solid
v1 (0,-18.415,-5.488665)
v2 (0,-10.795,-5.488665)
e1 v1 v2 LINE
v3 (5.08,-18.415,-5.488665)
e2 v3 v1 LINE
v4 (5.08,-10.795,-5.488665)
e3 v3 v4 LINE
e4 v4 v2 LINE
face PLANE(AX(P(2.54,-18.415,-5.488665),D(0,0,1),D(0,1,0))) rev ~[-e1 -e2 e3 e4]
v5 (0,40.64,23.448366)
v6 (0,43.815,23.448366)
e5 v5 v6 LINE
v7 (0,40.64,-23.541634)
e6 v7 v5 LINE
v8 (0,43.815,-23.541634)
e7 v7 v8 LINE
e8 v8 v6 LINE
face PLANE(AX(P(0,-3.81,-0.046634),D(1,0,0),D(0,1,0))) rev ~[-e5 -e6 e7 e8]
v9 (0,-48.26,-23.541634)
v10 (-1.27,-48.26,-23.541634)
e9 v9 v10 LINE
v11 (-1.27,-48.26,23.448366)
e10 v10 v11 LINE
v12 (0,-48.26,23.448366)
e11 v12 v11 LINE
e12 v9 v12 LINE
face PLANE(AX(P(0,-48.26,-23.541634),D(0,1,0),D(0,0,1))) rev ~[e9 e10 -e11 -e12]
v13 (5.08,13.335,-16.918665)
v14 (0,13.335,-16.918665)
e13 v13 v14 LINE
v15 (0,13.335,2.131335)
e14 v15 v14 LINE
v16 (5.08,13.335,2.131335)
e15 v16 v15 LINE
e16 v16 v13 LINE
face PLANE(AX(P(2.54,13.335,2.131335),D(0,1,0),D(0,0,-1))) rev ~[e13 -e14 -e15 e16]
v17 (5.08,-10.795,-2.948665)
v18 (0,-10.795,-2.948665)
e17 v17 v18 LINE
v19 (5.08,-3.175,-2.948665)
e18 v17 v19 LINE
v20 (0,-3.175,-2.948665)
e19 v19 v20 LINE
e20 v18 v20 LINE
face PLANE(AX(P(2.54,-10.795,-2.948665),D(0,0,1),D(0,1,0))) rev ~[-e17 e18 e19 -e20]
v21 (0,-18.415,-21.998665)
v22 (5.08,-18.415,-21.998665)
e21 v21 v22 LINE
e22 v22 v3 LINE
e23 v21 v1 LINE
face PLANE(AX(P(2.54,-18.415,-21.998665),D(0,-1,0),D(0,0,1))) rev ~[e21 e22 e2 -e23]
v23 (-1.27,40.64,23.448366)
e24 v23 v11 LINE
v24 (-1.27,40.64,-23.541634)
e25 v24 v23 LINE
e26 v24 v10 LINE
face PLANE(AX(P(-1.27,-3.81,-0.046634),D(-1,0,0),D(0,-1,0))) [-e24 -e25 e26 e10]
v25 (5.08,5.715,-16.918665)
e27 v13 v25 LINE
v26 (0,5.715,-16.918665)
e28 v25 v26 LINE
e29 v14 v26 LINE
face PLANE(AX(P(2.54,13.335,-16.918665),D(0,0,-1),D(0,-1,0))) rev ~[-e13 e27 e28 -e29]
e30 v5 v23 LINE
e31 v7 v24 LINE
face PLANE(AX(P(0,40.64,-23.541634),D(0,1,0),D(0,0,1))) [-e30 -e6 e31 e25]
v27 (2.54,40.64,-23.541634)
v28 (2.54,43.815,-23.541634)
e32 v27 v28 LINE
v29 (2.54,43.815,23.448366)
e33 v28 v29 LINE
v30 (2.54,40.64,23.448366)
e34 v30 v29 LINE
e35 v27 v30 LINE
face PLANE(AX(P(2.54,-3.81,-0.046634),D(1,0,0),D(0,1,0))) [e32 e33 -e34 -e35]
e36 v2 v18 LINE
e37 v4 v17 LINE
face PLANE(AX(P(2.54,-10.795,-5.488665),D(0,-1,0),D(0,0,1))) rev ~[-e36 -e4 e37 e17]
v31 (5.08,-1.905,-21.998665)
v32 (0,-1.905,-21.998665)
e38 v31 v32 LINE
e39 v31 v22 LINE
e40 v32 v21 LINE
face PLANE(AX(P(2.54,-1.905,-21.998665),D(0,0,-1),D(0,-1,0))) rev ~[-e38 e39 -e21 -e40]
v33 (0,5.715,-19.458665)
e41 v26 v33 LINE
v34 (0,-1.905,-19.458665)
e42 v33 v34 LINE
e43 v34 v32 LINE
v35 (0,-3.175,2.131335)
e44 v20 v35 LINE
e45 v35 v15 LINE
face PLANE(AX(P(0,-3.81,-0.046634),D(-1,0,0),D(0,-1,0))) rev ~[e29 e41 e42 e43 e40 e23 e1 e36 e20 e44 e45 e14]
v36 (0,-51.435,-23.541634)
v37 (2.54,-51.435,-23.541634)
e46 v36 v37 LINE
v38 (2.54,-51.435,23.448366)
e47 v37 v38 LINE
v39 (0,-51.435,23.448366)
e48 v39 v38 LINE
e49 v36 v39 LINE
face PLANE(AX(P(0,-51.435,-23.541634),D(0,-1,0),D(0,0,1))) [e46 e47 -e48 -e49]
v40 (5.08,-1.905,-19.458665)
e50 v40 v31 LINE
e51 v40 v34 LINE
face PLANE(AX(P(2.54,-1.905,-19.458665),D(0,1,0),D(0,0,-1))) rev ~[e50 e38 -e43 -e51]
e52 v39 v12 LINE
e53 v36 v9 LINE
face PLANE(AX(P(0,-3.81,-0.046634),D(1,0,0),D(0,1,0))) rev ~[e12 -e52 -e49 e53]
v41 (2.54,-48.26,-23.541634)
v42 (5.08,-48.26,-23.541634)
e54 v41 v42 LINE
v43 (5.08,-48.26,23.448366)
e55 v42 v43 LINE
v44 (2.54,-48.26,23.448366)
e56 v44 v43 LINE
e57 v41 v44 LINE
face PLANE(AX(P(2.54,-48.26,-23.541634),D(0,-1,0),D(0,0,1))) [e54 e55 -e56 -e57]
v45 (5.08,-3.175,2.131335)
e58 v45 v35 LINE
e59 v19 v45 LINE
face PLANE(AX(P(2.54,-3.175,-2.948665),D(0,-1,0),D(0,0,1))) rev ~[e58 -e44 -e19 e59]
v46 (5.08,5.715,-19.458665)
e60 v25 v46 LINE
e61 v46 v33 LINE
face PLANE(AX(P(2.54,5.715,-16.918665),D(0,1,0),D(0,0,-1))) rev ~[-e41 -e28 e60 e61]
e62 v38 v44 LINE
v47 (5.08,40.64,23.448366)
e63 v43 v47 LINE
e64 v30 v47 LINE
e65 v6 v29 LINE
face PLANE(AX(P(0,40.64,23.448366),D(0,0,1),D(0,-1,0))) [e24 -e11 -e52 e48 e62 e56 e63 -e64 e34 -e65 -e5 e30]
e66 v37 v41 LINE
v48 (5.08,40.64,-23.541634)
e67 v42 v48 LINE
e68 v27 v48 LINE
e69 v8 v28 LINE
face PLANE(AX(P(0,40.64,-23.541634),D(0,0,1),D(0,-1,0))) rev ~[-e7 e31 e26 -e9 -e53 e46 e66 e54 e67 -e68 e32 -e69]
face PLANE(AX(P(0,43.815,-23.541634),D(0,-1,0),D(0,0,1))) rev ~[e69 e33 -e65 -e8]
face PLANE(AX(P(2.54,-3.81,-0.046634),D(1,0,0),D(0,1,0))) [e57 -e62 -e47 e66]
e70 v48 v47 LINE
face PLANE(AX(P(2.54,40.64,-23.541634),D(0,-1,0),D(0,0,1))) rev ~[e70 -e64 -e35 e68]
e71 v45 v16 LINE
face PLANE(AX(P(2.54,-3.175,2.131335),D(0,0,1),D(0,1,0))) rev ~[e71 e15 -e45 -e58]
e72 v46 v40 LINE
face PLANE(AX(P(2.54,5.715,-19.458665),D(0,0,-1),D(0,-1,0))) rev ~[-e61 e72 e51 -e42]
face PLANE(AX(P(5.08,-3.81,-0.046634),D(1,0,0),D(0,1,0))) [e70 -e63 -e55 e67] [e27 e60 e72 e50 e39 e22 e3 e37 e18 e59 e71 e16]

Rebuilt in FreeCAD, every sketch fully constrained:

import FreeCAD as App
import Part
import Sketcher
from FreeCAD import Vector
Q = App.Units.Quantity

doc = App.newDocument("Part")
body = doc.addObject("PartDesign::Body", "Body")

# Sketch on YZ plane
sketch1 = body.newObject("Sketcher::SketchObject", "Sketch")
sketch1.AttachmentSupport = (doc.getObject("YZ_Plane"), [""])
sketch1.MapMode = "FlatFace"
sketch1.addGeometry([
    Part.LineSegment(Vector(-51.4, 23.4, 0), Vector(-51.4, -23.5, 0)),  # 0
    Part.LineSegment(Vector(-51.4, -23.5, 0), Vector(43.8, -23.5, 0)),  # 1
    Part.LineSegment(Vector(43.8, -23.5, 0), Vector(43.8, 23.4, 0)),  # 2
    Part.LineSegment(Vector(43.8, 23.4, 0), Vector(-51.4, 23.4, 0)),  # 3
    Part.LineSegment(Vector(-10.8, -2.9, 0), Vector(-3.2, -2.9, 0)),  # 4
    Part.LineSegment(Vector(-3.2, -2.9, 0), Vector(-3.2, 2.1, 0)),  # 5
    Part.LineSegment(Vector(-3.2, 2.1, 0), Vector(13.3, 2.1, 0)),  # 6
    Part.LineSegment(Vector(13.3, 2.1, 0), Vector(13.3, -16.9, 0)),  # 7
    Part.LineSegment(Vector(13.3, -16.9, 0), Vector(5.7, -16.9, 0)),  # 8
    Part.LineSegment(Vector(5.7, -16.9, 0), Vector(5.7, -19.5, 0)),  # 9
    Part.LineSegment(Vector(5.7, -19.5, 0), Vector(-1.9, -19.5, 0)),  # 10
    Part.LineSegment(Vector(-1.9, -19.5, 0), Vector(-1.9, -22, 0)),  # 11
    Part.LineSegment(Vector(-1.9, -22, 0), Vector(-18.4, -22, 0)),  # 12
    Part.LineSegment(Vector(-18.4, -22, 0), Vector(-18.4, -5.5, 0)),  # 13
    Part.LineSegment(Vector(-18.4, -5.5, 0), Vector(-10.8, -5.5, 0)),  # 14
    Part.LineSegment(Vector(-10.8, -5.5, 0), Vector(-10.8, -2.9, 0)),  # 15
], False)
sketch1.addConstraint([
    Sketcher.Constraint("Coincident", 0, 2, 1, 1),
    Sketcher.Constraint("Coincident", 1, 2, 2, 1),
    Sketcher.Constraint("Coincident", 2, 2, 3, 1),
    Sketcher.Constraint("Coincident", 3, 2, 0, 1),
    Sketcher.Constraint("Coincident", 4, 2, 5, 1),
    Sketcher.Constraint("Coincident", 5, 2, 6, 1),
    Sketcher.Constraint("Coincident", 6, 2, 7, 1),
    Sketcher.Constraint("Coincident", 7, 2, 8, 1),
    Sketcher.Constraint("Coincident", 8, 2, 9, 1),
    Sketcher.Constraint("Coincident", 9, 2, 10, 1),
    Sketcher.Constraint("Coincident", 10, 2, 11, 1),
    Sketcher.Constraint("Coincident", 11, 2, 12, 1),
    Sketcher.Constraint("Coincident", 12, 2, 13, 1),
    Sketcher.Constraint("Coincident", 13, 2, 14, 1),
    Sketcher.Constraint("Coincident", 14, 2, 15, 1),
    Sketcher.Constraint("Coincident", 15, 2, 4, 1),
    Sketcher.Constraint("Vertical", 0),
    Sketcher.Constraint("Horizontal", 1),
    Sketcher.Constraint("Vertical", 2),
    Sketcher.Constraint("Horizontal", 3),
    Sketcher.Constraint("Horizontal", 4),
    Sketcher.Constraint("Vertical", 5),
    Sketcher.Constraint("Horizontal", 6),
    Sketcher.Constraint("Vertical", 7),
    Sketcher.Constraint("Horizontal", 8),
    Sketcher.Constraint("Vertical", 9),
    Sketcher.Constraint("Horizontal", 10),
    Sketcher.Constraint("Vertical", 11),
    Sketcher.Constraint("Horizontal", 12),
    Sketcher.Constraint("Vertical", 13),
    Sketcher.Constraint("Horizontal", 14),
    Sketcher.Constraint("Vertical", 15),
    Sketcher.Constraint("Equal", 4, 8),
    Sketcher.Constraint("Equal", 8, 10),
    Sketcher.Constraint("Equal", 6, 12),
    Sketcher.Constraint("Equal", 9, 11),
    Sketcher.Constraint("Equal", 12, 13),
    Sketcher.Constraint("Equal", 11, 15),
    Sketcher.Constraint("DistanceX", 4, 1, 4, 2, Q("0.3 in")),
    Sketcher.Constraint("DistanceY", 5, 1, 5, 2, Q("0.2 in")),
    Sketcher.Constraint("DistanceY", 9, 2, 9, 1, Q("0.1 in")),
    Sketcher.Constraint("DistanceX", 1, 1, 1, 2, Q("3.75 in")),
    Sketcher.Constraint("DistanceX", 6, 1, 6, 2, Q("0.65 in")),
    Sketcher.Constraint("DistanceY", 0, 2, 0, 1, Q("1.85 in")),
    Sketcher.Constraint("DistanceX", 0, 2, 4, 2, Q("1.9 in")),
    Sketcher.Constraint("DistanceX", 0, 2, -1, 1, Q("2.025 in")),
    Sketcher.Constraint("DistanceY", 1, 2, 4, 2, 20.592969),
    Sketcher.Constraint("DistanceY", 0, 2, -1, 1, 23.541634),
])
pad1 = body.newObject("PartDesign::Pad", "Pad")
pad1.Profile = sketch1
pad1.Length = Q("0.1 in")

# Sketch on YZ plane
sketch2 = body.newObject("Sketcher::SketchObject", "Sketch001")
sketch2.AttachmentSupport = (doc.getObject("YZ_Plane"), [""])
sketch2.MapMode = "FlatFace"
sketch2.AttachmentOffset = App.Placement(Vector(0, 0, 0.1 * 25.4), App.Rotation())
sketch2.addGeometry([
    Part.LineSegment(Vector(-48.3, 23.4, 0), Vector(-48.3, -23.5, 0)),  # 0
    Part.LineSegment(Vector(-48.3, -23.5, 0), Vector(40.6, -23.5, 0)),  # 1
    Part.LineSegment(Vector(40.6, -23.5, 0), Vector(40.6, 23.4, 0)),  # 2
    Part.LineSegment(Vector(40.6, 23.4, 0), Vector(-48.3, 23.4, 0)),  # 3
    Part.LineSegment(Vector(-1.9, -22, 0), Vector(-18.4, -22, 0)),  # 4
    Part.LineSegment(Vector(-18.4, -22, 0), Vector(-18.4, -5.5, 0)),  # 5
    Part.LineSegment(Vector(-18.4, -5.5, 0), Vector(-10.8, -5.5, 0)),  # 6
    Part.LineSegment(Vector(-10.8, -5.5, 0), Vector(-10.8, -2.9, 0)),  # 7
    Part.LineSegment(Vector(-10.8, -2.9, 0), Vector(-3.2, -2.9, 0)),  # 8
    Part.LineSegment(Vector(-3.2, -2.9, 0), Vector(-3.2, 2.1, 0)),  # 9
    Part.LineSegment(Vector(-3.2, 2.1, 0), Vector(13.3, 2.1, 0)),  # 10
    Part.LineSegment(Vector(13.3, 2.1, 0), Vector(13.3, -16.9, 0)),  # 11
    Part.LineSegment(Vector(13.3, -16.9, 0), Vector(5.7, -16.9, 0)),  # 12
    Part.LineSegment(Vector(5.7, -16.9, 0), Vector(5.7, -19.5, 0)),  # 13
    Part.LineSegment(Vector(5.7, -19.5, 0), Vector(-1.9, -19.5, 0)),  # 14
    Part.LineSegment(Vector(-1.9, -19.5, 0), Vector(-1.9, -22, 0)),  # 15
], False)
sketch2.addConstraint([
    Sketcher.Constraint("Coincident", 0, 2, 1, 1),
    Sketcher.Constraint("Coincident", 1, 2, 2, 1),
    Sketcher.Constraint("Coincident", 2, 2, 3, 1),
    Sketcher.Constraint("Coincident", 3, 2, 0, 1),
    Sketcher.Constraint("Coincident", 4, 2, 5, 1),
    Sketcher.Constraint("Coincident", 5, 2, 6, 1),
    Sketcher.Constraint("Coincident", 6, 2, 7, 1),
    Sketcher.Constraint("Coincident", 7, 2, 8, 1),
    Sketcher.Constraint("Coincident", 8, 2, 9, 1),
    Sketcher.Constraint("Coincident", 9, 2, 10, 1),
    Sketcher.Constraint("Coincident", 10, 2, 11, 1),
    Sketcher.Constraint("Coincident", 11, 2, 12, 1),
    Sketcher.Constraint("Coincident", 12, 2, 13, 1),
    Sketcher.Constraint("Coincident", 13, 2, 14, 1),
    Sketcher.Constraint("Coincident", 14, 2, 15, 1),
    Sketcher.Constraint("Coincident", 15, 2, 4, 1),
    Sketcher.Constraint("Vertical", 0),
    Sketcher.Constraint("Horizontal", 1),
    Sketcher.Constraint("Vertical", 2),
    Sketcher.Constraint("Horizontal", 3),
    Sketcher.Constraint("Horizontal", 4),
    Sketcher.Constraint("Vertical", 5),
    Sketcher.Constraint("Horizontal", 6),
    Sketcher.Constraint("Vertical", 7),
    Sketcher.Constraint("Horizontal", 8),
    Sketcher.Constraint("Vertical", 9),
    Sketcher.Constraint("Horizontal", 10),
    Sketcher.Constraint("Vertical", 11),
    Sketcher.Constraint("Horizontal", 12),
    Sketcher.Constraint("Vertical", 13),
    Sketcher.Constraint("Horizontal", 14),
    Sketcher.Constraint("Vertical", 15),
    Sketcher.Constraint("Equal", 6, 8),
    Sketcher.Constraint("Equal", 4, 10),
    Sketcher.Constraint("Equal", 8, 12),
    Sketcher.Constraint("Equal", 10, 5),
    Sketcher.Constraint("Equal", 7, 13),
    Sketcher.Constraint("Equal", 13, 15),
    Sketcher.Constraint("DistanceX", 1, 1, 1, 2, Q("3.5 in")),
    Sketcher.Constraint("DistanceX", 6, 1, 6, 2, Q("0.3 in")),
    Sketcher.Constraint("DistanceY", 7, 1, 7, 2, Q("0.1 in")),
    Sketcher.Constraint("DistanceY", 9, 1, 9, 2, Q("0.2 in")),
    Sketcher.Constraint("DistanceX", 4, 2, 4, 1, Q("0.65 in")),
    Sketcher.Constraint("DistanceY", 0, 2, 0, 1, Q("1.85 in")),
    Sketcher.Constraint("DistanceX", 0, 2, -1, 1, Q("1.9 in")),
    Sketcher.Constraint("DistanceX", 4, 2, -1, 1, Q("0.725 in")),
    Sketcher.Constraint("DistanceY", 0, 2, 4, 2, 1.542969),
    Sketcher.Constraint("DistanceY", 0, 2, -1, 1, 23.541634),
])
pad2 = body.newObject("PartDesign::Pad", "Pad001")
pad2.Profile = sketch2
pad2.Length = Q("0.1 in")

# Sketch on YZ plane
sketch3 = body.newObject("Sketcher::SketchObject", "Sketch002")
sketch3.AttachmentSupport = (doc.getObject("YZ_Plane"), [""])
sketch3.MapMode = "FlatFace"
sketch3.addGeometry([
    Part.LineSegment(Vector(41, 23, 0), Vector(41, -24, 0)),
    Part.LineSegment(Vector(41, -24, 0), Vector(-48, -24, 0)),
    Part.LineSegment(Vector(-48, -24, 0), Vector(-48, 23, 0)),
    Part.LineSegment(Vector(-48, 23, 0), Vector(41, 23, 0)),
], False)
sketch3.addConstraint([
    Sketcher.Constraint("Coincident", 0, 2, 1, 1),
    Sketcher.Constraint("Coincident", 1, 2, 2, 1),
    Sketcher.Constraint("Coincident", 2, 2, 3, 1),
    Sketcher.Constraint("Coincident", 3, 2, 0, 1),
    Sketcher.Constraint("Vertical", 0),
    Sketcher.Constraint("Horizontal", 1),
    Sketcher.Constraint("Vertical", 2),
    Sketcher.Constraint("Horizontal", 3),
    Sketcher.Constraint("DistanceX", 1, 2, 1, 1, Q("3.5 in")),
    Sketcher.Constraint("DistanceY", 0, 2, 0, 1, Q("1.85 in")),
    Sketcher.Constraint("DistanceX", -1, 1, 0, 2, Q("1.6 in")),
    Sketcher.Constraint("DistanceY", 0, 2, -1, 1, 23.541634),
])
pad3 = body.newObject("PartDesign::Pad", "Pad002")
pad3.Profile = sketch3
pad3.Length = Q("0.05 in")
pad3.Reversed = True

doc.recompute()
